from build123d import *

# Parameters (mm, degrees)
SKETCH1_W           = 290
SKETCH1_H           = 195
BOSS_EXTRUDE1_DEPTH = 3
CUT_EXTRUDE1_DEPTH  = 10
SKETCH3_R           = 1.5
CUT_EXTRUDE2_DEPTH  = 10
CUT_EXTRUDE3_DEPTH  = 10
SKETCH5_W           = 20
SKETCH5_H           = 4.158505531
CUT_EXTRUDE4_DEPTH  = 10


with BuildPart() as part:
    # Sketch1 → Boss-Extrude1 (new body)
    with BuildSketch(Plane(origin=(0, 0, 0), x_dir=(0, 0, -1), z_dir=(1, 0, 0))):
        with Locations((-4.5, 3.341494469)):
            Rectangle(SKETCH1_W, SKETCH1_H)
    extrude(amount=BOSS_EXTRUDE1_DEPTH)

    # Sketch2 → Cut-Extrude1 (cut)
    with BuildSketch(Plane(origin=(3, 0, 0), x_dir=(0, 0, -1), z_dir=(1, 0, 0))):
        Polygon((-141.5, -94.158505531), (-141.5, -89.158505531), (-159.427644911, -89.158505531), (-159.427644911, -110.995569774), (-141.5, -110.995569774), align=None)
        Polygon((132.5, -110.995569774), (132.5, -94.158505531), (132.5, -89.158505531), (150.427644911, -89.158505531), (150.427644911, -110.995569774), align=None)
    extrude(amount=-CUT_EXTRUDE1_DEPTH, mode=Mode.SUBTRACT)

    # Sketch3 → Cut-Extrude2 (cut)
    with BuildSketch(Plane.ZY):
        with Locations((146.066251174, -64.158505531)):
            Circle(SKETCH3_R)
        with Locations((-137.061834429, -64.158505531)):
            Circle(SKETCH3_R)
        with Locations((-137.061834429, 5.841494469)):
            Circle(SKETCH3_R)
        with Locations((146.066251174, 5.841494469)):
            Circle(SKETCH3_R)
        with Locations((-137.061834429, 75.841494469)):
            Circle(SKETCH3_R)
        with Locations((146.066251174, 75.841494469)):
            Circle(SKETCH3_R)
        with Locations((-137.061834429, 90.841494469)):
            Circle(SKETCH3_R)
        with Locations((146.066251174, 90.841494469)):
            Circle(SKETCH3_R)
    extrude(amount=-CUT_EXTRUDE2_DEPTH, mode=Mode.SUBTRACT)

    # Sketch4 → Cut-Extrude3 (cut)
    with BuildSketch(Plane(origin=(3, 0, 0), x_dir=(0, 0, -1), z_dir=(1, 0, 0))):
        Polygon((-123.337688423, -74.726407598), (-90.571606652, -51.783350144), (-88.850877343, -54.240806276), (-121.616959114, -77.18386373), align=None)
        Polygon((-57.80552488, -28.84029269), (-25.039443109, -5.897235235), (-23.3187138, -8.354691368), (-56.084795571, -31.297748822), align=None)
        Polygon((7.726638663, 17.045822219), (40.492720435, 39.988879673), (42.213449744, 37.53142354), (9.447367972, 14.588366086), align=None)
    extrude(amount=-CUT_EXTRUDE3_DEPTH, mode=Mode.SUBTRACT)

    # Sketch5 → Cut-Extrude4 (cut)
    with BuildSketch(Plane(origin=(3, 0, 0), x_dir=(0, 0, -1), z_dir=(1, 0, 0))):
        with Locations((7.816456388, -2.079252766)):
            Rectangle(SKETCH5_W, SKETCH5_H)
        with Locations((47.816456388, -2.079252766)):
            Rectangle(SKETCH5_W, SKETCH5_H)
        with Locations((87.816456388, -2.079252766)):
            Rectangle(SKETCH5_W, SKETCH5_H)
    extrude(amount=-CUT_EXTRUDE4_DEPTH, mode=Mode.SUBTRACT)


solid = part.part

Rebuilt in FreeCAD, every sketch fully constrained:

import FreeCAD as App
import Part
import Sketcher
from FreeCAD import Vector
Q = App.Units.Quantity

doc = App.newDocument("Part")
body = doc.addObject("PartDesign::Body", "Body")

sketch1 = body.newObject("Sketcher::SketchObject", "Sketch")
sketch1.AttachmentSupport = (doc.getObject("YZ_Plane"), [""])
sketch1.MapMode = "FlatFace"
sketch1.addGeometry(Part.LineSegment(Vector(100.841494, 149.5, 0), Vector(-94.158506, 149.5, 0)), False)
sketch1.addGeometry(Part.LineSegment(Vector(-94.158506, 149.5, 0), Vector(-94.158506, -140.5, 0)), False)
sketch1.addGeometry(Part.LineSegment(Vector(-94.158506, -140.5, 0), Vector(100.841494, -140.5, 0)), False)
sketch1.addGeometry(Part.LineSegment(Vector(100.841494, -140.5, 0), Vector(100.841494, 149.5, 0)), False)
sketch1.addConstraint(Sketcher.Constraint("Coincident", 0, 2, 1, 1))
sketch1.addConstraint(Sketcher.Constraint("Coincident", 1, 2, 2, 1))
sketch1.addConstraint(Sketcher.Constraint("Coincident", 2, 2, 3, 1))
sketch1.addConstraint(Sketcher.Constraint("Coincident", 3, 2, 0, 1))
sketch1.addConstraint(Sketcher.Constraint("Horizontal", 0))
sketch1.addConstraint(Sketcher.Constraint("Vertical", 1))
sketch1.addConstraint(Sketcher.Constraint("Horizontal", 2))
sketch1.addConstraint(Sketcher.Constraint("Vertical", 3))
sketch1.addConstraint(Sketcher.Constraint("DistanceX", 0, 2, 0, 1, Q("195 mm")))
sketch1.addConstraint(Sketcher.Constraint("DistanceY", 1, 2, 1, 1, Q("290 mm")))
sketch1.addConstraint(Sketcher.Constraint("DistanceY", -1, 1, 0, 2, Q("149.5 mm")))
sketch1.addConstraint(Sketcher.Constraint("DistanceX", 0, 2, -1, 1, Q("94.158506 mm")))
pad1 = body.newObject("PartDesign::Pad", "Pad")
pad1.Profile = sketch1
pad1.Length = 3

sketch2 = body.newObject("Sketcher::SketchObject", "Sketch001")
sketch2.AttachmentSupport = (doc.getObject("YZ_Plane"), [""])
sketch2.MapMode = "FlatFace"
sketch2.AttachmentOffset = App.Placement(Vector(0, 0, 3), App.Rotation())
sketch2.addGeometry(Part.LineSegment(Vector(-89.158506, 141.5, 0), Vector(-89.158506, 159.427645, 0)), False)
sketch2.addGeometry(Part.LineSegment(Vector(-89.158506, 159.427645, 0), Vector(-110.99557, 159.427645, 0)), False)
sketch2.addGeometry(Part.LineSegment(Vector(-110.99557, 159.427645, 0), Vector(-110.99557, 141.5, 0)), False)
sketch2.addGeometry(Part.LineSegment(Vector(-110.99557, 141.5, 0), Vector(-89.158506, 141.5, 0)), False)
sketch2.addGeometry(Part.LineSegment(Vector(-89.158506, -132.5, 0), Vector(-110.99557, -132.5, 0)), False)
sketch2.addGeometry(Part.LineSegment(Vector(-110.99557, -132.5, 0), Vector(-110.99557, -150.427645, 0)), False)
sketch2.addGeometry(Part.LineSegment(Vector(-110.99557, -150.427645, 0), Vector(-89.158506, -150.427645, 0)), False)
sketch2.addGeometry(Part.LineSegment(Vector(-89.158506, -150.427645, 0), Vector(-89.158506, -132.5, 0)), False)
sketch2.addConstraint(Sketcher.Constraint("Coincident", 0, 2, 1, 1))
sketch2.addConstraint(Sketcher.Constraint("Coincident", 1, 2, 2, 1))
sketch2.addConstraint(Sketcher.Constraint("Coincident", 2, 2, 3, 1))
sketch2.addConstraint(Sketcher.Constraint("Coincident", 3, 2, 0, 1))
sketch2.addConstraint(Sketcher.Constraint("Coincident", 4, 2, 5, 1))
sketch2.addConstraint(Sketcher.Constraint("Coincident", 5, 2, 6, 1))
sketch2.addConstraint(Sketcher.Constraint("Coincident", 6, 2, 7, 1))
sketch2.addConstraint(Sketcher.Constraint("Coincident", 7, 2, 4, 1))
sketch2.addConstraint(Sketcher.Constraint("Vertical", 0))
sketch2.addConstraint(Sketcher.Constraint("Horizontal", 1))
sketch2.addConstraint(Sketcher.Constraint("Vertical", 2))
sketch2.addConstraint(Sketcher.Constraint("Horizontal", 3))
sketch2.addConstraint(Sketcher.Constraint("Horizontal", 4))
sketch2.addConstraint(Sketcher.Constraint("Vertical", 5))
sketch2.addConstraint(Sketcher.Constraint("Horizontal", 6))
sketch2.addConstraint(Sketcher.Constraint("Vertical", 7))
sketch2.addConstraint(Sketcher.Constraint("Vertical", 2, 2, 4, 2))
sketch2.addConstraint(Sketcher.Constraint("Vertical", 3, 2, 6, 2))
sketch2.addConstraint(Sketcher.Constraint("Equal", 2, 5))
sketch2.addConstraint(Sketcher.Constraint("DistanceY", 4, 2, 2, 2, Q("274 mm")))
sketch2.addConstraint(Sketcher.Constraint("DistanceY", -1, 1, 2, 2, Q("141.5 mm")))
sketch2.addConstraint(Sketcher.Constraint("DistanceX", 1, 2, 1, 1, Q("21.837064 mm")))
sketch2.addConstraint(Sketcher.Constraint("DistanceY", 0, 1, 0, 2, Q("17.927645 mm")))
sketch2.addConstraint(Sketcher.Constraint("DistanceX", 1, 2, -1, 1, Q("110.99557 mm")))
pocket1 = body.newObject("PartDesign::Pocket", "Pocket")
pocket1.Profile = sketch2
pocket1.Length = 10

sketch3 = body.newObject("Sketcher::SketchObject", "Sketch002")
sketch3.AttachmentSupport = (doc.getObject("YZ_Plane"), [""])
sketch3.MapMode = "FlatFace"
sketch3.addGeometry(Part.Circle(Vector(-64.158506, 146.066251, 0), Vector(0, 0, 1), 1.5), False)
sketch3.addGeometry(Part.Circle(Vector(-64.158506, -137.061834, 0), Vector(0, 0, 1), 1.5), False)
sketch3.addGeometry(Part.Circle(Vector(5.841494, -137.061834, 0), Vector(0, 0, 1), 1.5), False)
sketch3.addGeometry(Part.Circle(Vector(5.841494, 146.066251, 0), Vector(0, 0, 1), 1.5), False)
sketch3.addGeometry(Part.Circle(Vector(75.841494, -137.061834, 0), Vector(0, 0, 1), 1.5), False)
sketch3.addGeometry(Part.Circle(Vector(75.841494, 146.066251, 0), Vector(0, 0, 1), 1.5), False)
sketch3.addGeometry(Part.Circle(Vector(90.841494, -137.061834, 0), Vector(0, 0, 1), 1.5), False)
sketch3.addGeometry(Part.Circle(Vector(90.841494, 146.066251, 0), Vector(0, 0, 1), 1.5), False)
sketch3.addConstraint(Sketcher.Constraint("Equal", 0, 1))
sketch3.addConstraint(Sketcher.Constraint("Equal", 1, 2))
sketch3.addConstraint(Sketcher.Constraint("Equal", 2, 3))
sketch3.addConstraint(Sketcher.Constraint("Equal", 3, 4))
sketch3.addConstraint(Sketcher.Constraint("Equal", 4, 5))
sketch3.addConstraint(Sketcher.Constraint("Equal", 5, 6))
sketch3.addConstraint(Sketcher.Constraint("Equal", 6, 7))
sketch3.addConstraint(Sketcher.Constraint("Horizontal", 1, 3, 2, 3))
sketch3.addConstraint(Sketcher.Constraint("Horizontal", 0, 3, 3, 3))
sketch3.addConstraint(Sketcher.Constraint("Horizontal", 2, 3, 4, 3))
sketch3.addConstraint(Sketcher.Constraint("Horizontal", 3, 3, 5, 3))
sketch3.addConstraint(Sketcher.Constraint("Horizontal", 4, 3, 6, 3))
sketch3.addConstraint(Sketcher.Constraint("Horizontal", 5, 3, 7, 3))
sketch3.addConstraint(Sketcher.Constraint("Vertical", 0, 3, 1, 3))
sketch3.addConstraint(Sketcher.Constraint("Vertical", 2, 3, 3, 3))
sketch3.addConstraint(Sketcher.Constraint("Vertical", 4, 3, 5, 3))
sketch3.addConstraint(Sketcher.Constraint("Vertical", 6, 3, 7, 3))
sketch3.addConstraint(Sketcher.Constraint("Diameter", 0, Q("3 mm")))
sketch3.addConstraint(Sketcher.Constraint("DistanceX", 1, 3, 2, 3, Q("70 mm")))
sketch3.addConstraint(Sketcher.Constraint("DistanceX", 2, 3, 4, 3, Q("70 mm")))
sketch3.addConstraint(Sketcher.Constraint("DistanceX", 4, 3, 6, 3, Q("15 mm")))
sketch3.addConstraint(Sketcher.Constraint("DistanceY", -1, 1, 0, 3, Q("146.066251 mm")))
sketch3.addConstraint(Sketcher.Constraint("DistanceX", 0, 3, -1, 1, Q("64.158506 mm")))
sketch3.addConstraint(Sketcher.Constraint("DistanceY", 1, 3, -1, 1, Q("137.061834 mm")))
pocket2 = body.newObject("PartDesign::Pocket", "Pocket001")
pocket2.Profile = sketch3
pocket2.Length = 10
pocket2.Reversed = True

sketch4 = body.newObject("Sketcher::SketchObject", "Sketch003")
sketch4.AttachmentSupport = (doc.getObject("YZ_Plane"), [""])
sketch4.MapMode = "FlatFace"
sketch4.AttachmentOffset = App.Placement(Vector(0, 0, 3), App.Rotation())
sketch4.addGeometry(Part.LineSegment(Vector(-51.78335, 90.571607, 0), Vector(-74.726408, 123.337688, 0)), False)
sketch4.addGeometry(Part.LineSegment(Vector(-74.726408, 123.337688, 0), Vector(-77.183864, 121.616959, 0)), False)
sketch4.addGeometry(Part.LineSegment(Vector(-77.183864, 121.616959, 0), Vector(-54.240806, 88.850877, 0)), False)
sketch4.addGeometry(Part.LineSegment(Vector(-54.240806, 88.850877, 0), Vector(-51.78335, 90.571607, 0)), False)
sketch4.addGeometry(Part.LineSegment(Vector(-5.897235, 25.039443, 0), Vector(-28.840293, 57.805525, 0)), False)
sketch4.addGeometry(Part.LineSegment(Vector(-28.840293, 57.805525, 0), Vector(-31.297749, 56.084796, 0)), False)
sketch4.addGeometry(Part.LineSegment(Vector(-31.297749, 56.084796, 0), Vector(-8.354691, 23.318714, 0)), False)
sketch4.addGeometry(Part.LineSegment(Vector(-8.354691, 23.318714, 0), Vector(-5.897235, 25.039443, 0)), False)
sketch4.addGeometry(Part.LineSegment(Vector(39.98888, -40.49272, 0), Vector(17.045822, -7.726639, 0)), False)
sketch4.addGeometry(Part.LineSegment(Vector(17.045822, -7.726639, 0), Vector(14.588366, -9.447368, 0)), False)
sketch4.addGeometry(Part.LineSegment(Vector(14.588366, -9.447368, 0), Vector(37.531424, -42.21345, 0)), False)
sketch4.addGeometry(Part.LineSegment(Vector(37.531424, -42.21345, 0), Vector(39.98888, -40.49272, 0)), False)
sketch4.addConstraint(Sketcher.Constraint("Coincident", 0, 2, 1, 1))
sketch4.addConstraint(Sketcher.Constraint("Coincident", 1, 2, 2, 1))
sketch4.addConstraint(Sketcher.Constraint("Coincident", 2, 2, 3, 1))
sketch4.addConstraint(Sketcher.Constraint("Coincident", 3, 2, 0, 1))
sketch4.addConstraint(Sketcher.Constraint("Coincident", 4, 2, 5, 1))
sketch4.addConstraint(Sketcher.Constraint("Coincident", 5, 2, 6, 1))
sketch4.addConstraint(Sketcher.Constraint("Coincident", 6, 2, 7, 1))
sketch4.addConstraint(Sketcher.Constraint("Coincident", 7, 2, 4, 1))
sketch4.addConstraint(Sketcher.Constraint("Coincident", 8, 2, 9, 1))
sketch4.addConstraint(Sketcher.Constraint("Coincident", 9, 2, 10, 1))
sketch4.addConstraint(Sketcher.Constraint("Coincident", 10, 2, 11, 1))
sketch4.addConstraint(Sketcher.Constraint("Coincident", 11, 2, 8, 1))
sketch4.addConstraint(Sketcher.Constraint("Perpendicular", 0, 1))
sketch4.addConstraint(Sketcher.Constraint("Perpendicular", 1, 2))
sketch4.addConstraint(Sketcher.Constraint("Perpendicular", 2, 3))
sketch4.addConstraint(Sketcher.Constraint("Perpendicular", 3, 4))
sketch4.addConstraint(Sketcher.Constraint("Perpendicular", 4, 5))
sketch4.addConstraint(Sketcher.Constraint("Perpendicular", 5, 6))
sketch4.addConstraint(Sketcher.Constraint("Perpendicular", 6, 7))
sketch4.addConstraint(Sketcher.Constraint("Perpendicular", 7, 8))
sketch4.addConstraint(Sketcher.Constraint("Perpendicular", 8, 9))
sketch4.addConstraint(Sketcher.Constraint("Perpendicular", 9, 10))
sketch4.addConstraint(Sketcher.Constraint("Perpendicular", 10, 11))
sketch4.addConstraint(Sketcher.Constraint("Equal", 2, 4))
sketch4.addConstraint(Sketcher.Constraint("Equal", 3, 5))
sketch4.addConstraint(Sketcher.Constraint("Equal", 6, 8))
sketch4.addConstraint(Sketcher.Constraint("Equal", 7, 9))
sketch4.addConstraint(Sketcher.Constraint("Angle", 0, Q("125 deg")))
sketch4.addConstraint(Sketcher.Constraint("Distance", 0, Q("40 mm")))
sketch4.addConstraint(Sketcher.Constraint("Distance", 1, Q("3 mm")))
sketch4.addConstraint(Sketcher.Constraint("DistanceX", 3, 2, 5, 2, Q("20.485601 mm")))
sketch4.addConstraint(Sketcher.Constraint("DistanceX", 7, 2, 9, 2, Q("20.485601 mm")))
sketch4.addConstraint(Sketcher.Constraint("DistanceY", -1, 1, 0, 2, Q("123.337688 mm")))
sketch4.addConstraint(Sketcher.Constraint("DistanceX", 3, 2, -1, 1, Q("51.78335 mm")))
sketch4.addConstraint(Sketcher.Constraint("DistanceY", 8, 2, -1, 1, Q("7.726639 mm")))
sketch4.addConstraint(Sketcher.Constraint("DistanceY", 4, 2, 3, 2, Q("32.766082 mm")))
pocket3 = body.newObject("PartDesign::Pocket", "Pocket002")
pocket3.Profile = sketch4
pocket3.Length = 10

sketch5 = body.newObject("Sketcher::SketchObject", "Sketch004")
sketch5.AttachmentSupport = (doc.getObject("YZ_Plane"), [""])
sketch5.MapMode = "FlatFace"
sketch5.AttachmentOffset = App.Placement(Vector(0, 0, 3), App.Rotation())
sketch5.addGeometry(Part.LineSegment(Vector(0, 2.183544, 0), Vector(-4.158506, 2.183544, 0)), False)
sketch5.addGeometry(Part.LineSegment(Vector(-4.158506, 2.183544, 0), Vector(-4.158506, -17.816456, 0)), False)
sketch5.addGeometry(Part.LineSegment(Vector(-4.158506, -17.816456, 0), Vector(0, -17.816456, 0)), False)
sketch5.addGeometry(Part.LineSegment(Vector(0, -17.816456, 0), Vector(0, 2.183544, 0)), False)
sketch5.addGeometry(Part.LineSegment(Vector(0, -37.816456, 0), Vector(-4.158506, -37.816456, 0)), False)
sketch5.addGeometry(Part.LineSegment(Vector(-4.158506, -37.816456, 0), Vector(-4.158506, -57.816456, 0)), False)
sketch5.addGeometry(Part.LineSegment(Vector(-4.158506, -57.816456, 0), Vector(0, -57.816456, 0)), False)
sketch5.addGeometry(Part.LineSegment(Vector(0, -57.816456, 0), Vector(0, -37.816456, 0)), False)
sketch5.addGeometry(Part.LineSegment(Vector(0, -77.816456, 0), Vector(-4.158506, -77.816456, 0)), False)
sketch5.addGeometry(Part.LineSegment(Vector(-4.158506, -77.816456, 0), Vector(-4.158506, -97.816456, 0)), False)
sketch5.addGeometry(Part.LineSegment(Vector(-4.158506, -97.816456, 0), Vector(0, -97.816456, 0)), False)
sketch5.addGeometry(Part.LineSegment(Vector(0, -97.816456, 0), Vector(0, -77.816456, 0)), False)
sketch5.addConstraint(Sketcher.Constraint("Coincident", 0, 2, 1, 1))
sketch5.addConstraint(Sketcher.Constraint("Coincident", 1, 2, 2, 1))
sketch5.addConstraint(Sketcher.Constraint("Coincident", 2, 2, 3, 1))
sketch5.addConstraint(Sketcher.Constraint("Coincident", 3, 2, 0, 1))
sketch5.addConstraint(Sketcher.Constraint("Coincident", 4, 2, 5, 1))
sketch5.addConstraint(Sketcher.Constraint("Coincident", 5, 2, 6, 1))
sketch5.addConstraint(Sketcher.Constraint("Coincident", 6, 2, 7, 1))
sketch5.addConstraint(Sketcher.Constraint("Coincident", 7, 2, 4, 1))
sketch5.addConstraint(Sketcher.Constraint("Coincident", 8, 2, 9, 1))
sketch5.addConstraint(Sketcher.Constraint("Coincident", 9, 2, 10, 1))
sketch5.addConstraint(Sketcher.Constraint("Coincident", 10, 2, 11, 1))
sketch5.addConstraint(Sketcher.Constraint("Coincident", 11, 2, 8, 1))
sketch5.addConstraint(Sketcher.Constraint("Horizontal", 0))
sketch5.addConstraint(Sketcher.Constraint("Vertical", 1))
sketch5.addConstraint(Sketcher.Constraint("Horizontal", 2))
sketch5.addConstraint(Sketcher.Constraint("Vertical", 3))
sketch5.addConstraint(Sketcher.Constraint("Horizontal", 4))
sketch5.addConstraint(Sketcher.Constraint("Vertical", 5))
sketch5.addConstraint(Sketcher.Constraint("Horizontal", 6))
sketch5.addConstraint(Sketcher.Constraint("Vertical", 7))
sketch5.addConstraint(Sketcher.Constraint("Horizontal", 8))
sketch5.addConstraint(Sketcher.Constraint("Vertical", 9))
sketch5.addConstraint(Sketcher.Constraint("Horizontal", 10))
sketch5.addConstraint(Sketcher.Constraint("Vertical", 11))
sketch5.addConstraint(Sketcher.Constraint("PointOnObject", 2, 2, -2))
sketch5.addConstraint(Sketcher.Constraint("PointOnObject", 6, 2, -2))
sketch5.addConstraint(Sketcher.Constraint("PointOnObject", 10, 2, -2))
sketch5.addConstraint(Sketcher.Constraint("Vertical", 1, 2, 4, 2))
sketch5.addConstraint(Sketcher.Constraint("Vertical", 5, 2, 8, 2))
sketch5.addConstraint(Sketcher.Constraint("Equal", 3, 5))
sketch5.addConstraint(Sketcher.Constraint("Equal", 7, 9))
sketch5.addConstraint(Sketcher.Constraint("DistanceY", 1, 2, 1, 1, Q("20 mm")))
sketch5.addConstraint(Sketcher.Constraint("DistanceY", 4, 2, 1, 2, Q("20 mm")))
sketch5.addConstraint(Sketcher.Constraint("DistanceY", 8, 2, 5, 2, Q("20 mm")))
sketch5.addConstraint(Sketcher.Constraint("DistanceX", 0, 2, 0, 1, Q("4.158506 mm")))
sketch5.addConstraint(Sketcher.Constraint("DistanceY", -1, 1, 0, 2, Q("2.183544 mm")))
pocket4 = body.newObject("PartDesign::Pocket", "Pocket003")
pocket4.Profile = sketch5
pocket4.Length = 10

doc.recompute()
